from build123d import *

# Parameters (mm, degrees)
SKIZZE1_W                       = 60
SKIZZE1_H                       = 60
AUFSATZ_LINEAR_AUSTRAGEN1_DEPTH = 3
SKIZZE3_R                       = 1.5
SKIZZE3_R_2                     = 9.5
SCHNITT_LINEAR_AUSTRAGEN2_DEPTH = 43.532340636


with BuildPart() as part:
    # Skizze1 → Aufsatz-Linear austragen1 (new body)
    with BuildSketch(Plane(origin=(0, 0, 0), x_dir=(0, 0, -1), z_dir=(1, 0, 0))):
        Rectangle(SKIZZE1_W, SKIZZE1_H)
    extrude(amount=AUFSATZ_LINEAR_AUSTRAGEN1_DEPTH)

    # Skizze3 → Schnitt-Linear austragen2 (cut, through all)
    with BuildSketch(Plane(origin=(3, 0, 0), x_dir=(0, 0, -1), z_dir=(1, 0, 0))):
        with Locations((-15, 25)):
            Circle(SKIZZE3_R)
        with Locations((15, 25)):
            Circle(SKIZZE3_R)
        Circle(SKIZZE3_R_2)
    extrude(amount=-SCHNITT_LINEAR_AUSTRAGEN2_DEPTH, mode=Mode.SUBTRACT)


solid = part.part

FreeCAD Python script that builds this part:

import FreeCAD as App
import Part
import Sketcher
from FreeCAD import Vector
Q = App.Units.Quantity

doc = App.newDocument("Part")
body = doc.addObject("PartDesign::Body", "Body")

sketch1 = body.newObject("Sketcher::SketchObject", "Sketch")
sketch1.AttachmentSupport = (doc.getObject("YZ_Plane"), [""])
sketch1.MapMode = "FlatFace"
sketch1.addGeometry([
    Part.LineSegment(Vector(30, 30, 0), Vector(-30, 30, 0)),
    Part.LineSegment(Vector(-30, 30, 0), Vector(-30, -30, 0)),
    Part.LineSegment(Vector(-30, -30, 0), Vector(30, -30, 0)),
    Part.LineSegment(Vector(30, -30, 0), Vector(30, 30, 0)),
], False)
sketch1.addConstraint([
    Sketcher.Constraint("Coincident", 0, 2, 1, 1),
    Sketcher.Constraint("Coincident", 1, 2, 2, 1),
    Sketcher.Constraint("Coincident", 2, 2, 3, 1),
    Sketcher.Constraint("Coincident", 3, 2, 0, 1),
    Sketcher.Constraint("Horizontal", 0),
    Sketcher.Constraint("Vertical", 1),
    Sketcher.Constraint("Horizontal", 2),
    Sketcher.Constraint("Vertical", 3),
    Sketcher.Constraint("Symmetric", 0, 2, 2, 2, -1, 1),
    Sketcher.Constraint("Equal", 2, 1),
    Sketcher.Constraint("DistanceX", 0, 2, 0, 1, Q("60 mm")),
])
pad1 = body.newObject("PartDesign::Pad", "Pad")
pad1.Profile = sketch1
pad1.Length = 3

sketch2 = body.newObject("Sketcher::SketchObject", "Sketch001")
sketch2.AttachmentSupport = (doc.getObject("YZ_Plane"), [""])
sketch2.MapMode = "FlatFace"
sketch2.AttachmentOffset = App.Placement(Vector(0, 0, 3), App.Rotation())
sketch2.addGeometry([
    Part.Circle(Vector(25, 15, 0), Vector(0, 0, 1), 1.5),
    Part.Circle(Vector(25, -15, 0), Vector(0, 0, 1), 1.5),
    Part.Circle(Vector(0, 0, 0), Vector(0, 0, 1), 9.5),
], False)
sketch2.addConstraint([
    Sketcher.Constraint("Coincident", 2, 3, -1, 1),
    Sketcher.Constraint("Equal", 0, 1),
    Sketcher.Constraint("Symmetric", 0, 3, 1, 3, -1),
    Sketcher.Constraint("Diameter", 0, Q("3 mm")),
    Sketcher.Constraint("Diameter", 2, Q("19 mm")),
    Sketcher.Constraint("DistanceX", -1, 1, 0, 3, Q("25 mm")),
    Sketcher.Constraint("DistanceY", -1, 1, 0, 3, Q("15 mm")),
])
pocket1 = body.newObject("PartDesign::Pocket", "Pocket")
pocket1.Profile = sketch2
pocket1.Type = "ThroughAll"

doc.recompute()
